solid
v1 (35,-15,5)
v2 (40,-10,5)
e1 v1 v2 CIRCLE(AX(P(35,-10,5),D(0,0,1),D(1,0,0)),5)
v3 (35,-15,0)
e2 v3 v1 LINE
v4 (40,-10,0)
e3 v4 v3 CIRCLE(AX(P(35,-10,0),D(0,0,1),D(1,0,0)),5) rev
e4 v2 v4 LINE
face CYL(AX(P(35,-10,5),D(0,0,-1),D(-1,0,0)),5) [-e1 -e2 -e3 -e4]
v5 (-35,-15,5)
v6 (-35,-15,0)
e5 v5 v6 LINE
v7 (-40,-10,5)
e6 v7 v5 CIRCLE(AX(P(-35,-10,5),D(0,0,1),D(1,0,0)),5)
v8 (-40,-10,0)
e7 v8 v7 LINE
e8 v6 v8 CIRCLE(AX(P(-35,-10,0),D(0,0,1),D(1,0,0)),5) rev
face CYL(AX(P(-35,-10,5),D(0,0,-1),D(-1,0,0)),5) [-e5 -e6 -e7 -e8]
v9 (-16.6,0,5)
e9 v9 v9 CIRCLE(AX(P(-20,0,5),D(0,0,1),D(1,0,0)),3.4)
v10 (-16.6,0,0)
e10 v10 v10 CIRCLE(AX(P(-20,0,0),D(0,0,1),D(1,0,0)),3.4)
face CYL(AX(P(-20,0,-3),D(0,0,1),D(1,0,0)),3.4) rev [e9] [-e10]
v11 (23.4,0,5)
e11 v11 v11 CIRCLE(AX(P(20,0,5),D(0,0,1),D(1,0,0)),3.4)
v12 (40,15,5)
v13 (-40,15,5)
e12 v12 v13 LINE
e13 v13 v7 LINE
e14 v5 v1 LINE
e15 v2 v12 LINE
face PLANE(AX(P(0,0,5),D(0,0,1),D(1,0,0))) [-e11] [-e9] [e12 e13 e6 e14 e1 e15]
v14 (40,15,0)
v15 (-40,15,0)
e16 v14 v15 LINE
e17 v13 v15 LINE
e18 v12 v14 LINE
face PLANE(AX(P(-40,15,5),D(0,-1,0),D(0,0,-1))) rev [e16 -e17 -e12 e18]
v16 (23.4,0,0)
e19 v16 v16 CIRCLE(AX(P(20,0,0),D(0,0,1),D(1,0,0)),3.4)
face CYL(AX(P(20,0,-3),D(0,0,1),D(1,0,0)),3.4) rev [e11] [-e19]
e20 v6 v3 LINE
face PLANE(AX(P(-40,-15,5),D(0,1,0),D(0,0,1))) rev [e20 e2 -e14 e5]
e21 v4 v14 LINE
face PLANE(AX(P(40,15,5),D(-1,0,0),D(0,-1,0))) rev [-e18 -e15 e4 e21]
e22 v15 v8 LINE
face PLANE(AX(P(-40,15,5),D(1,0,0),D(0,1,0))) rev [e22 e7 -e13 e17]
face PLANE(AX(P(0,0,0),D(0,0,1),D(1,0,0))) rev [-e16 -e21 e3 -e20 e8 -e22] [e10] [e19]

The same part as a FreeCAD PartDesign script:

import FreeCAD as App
import Part
import Sketcher
from FreeCAD import Vector


def edges_at(feature, points):
    """Names of the edges that pass closest to the given points."""
    edges = feature.Shape.Edges
    near = lambda p: min(range(len(edges)), key=lambda i: edges[i].distToShape(Part.Vertex(*p))[0])
    return sorted({f"Edge{near(p) + 1}" for p in points})


def add_polygon(sketch, points):
    """Adds a closed chain of lines whose ends are joined by coincident constraints."""
    first, n = sketch.GeometryCount, len(points)
    for a, b in zip(points, points[1:] + points[:1]):
        sketch.addGeometry(Part.LineSegment(App.Vector(*a, 0), App.Vector(*b, 0)), False)
    for i in range(n):
        sketch.addConstraint(Sketcher.Constraint("Coincident", first + i, 2, first + (i + 1) % n, 1))

doc = App.newDocument("Part")
body = doc.addObject("PartDesign::Body", "Body")

# Sketch on XY plane
sketch1 = body.newObject("Sketcher::SketchObject", "Sketch")
sketch1.AttachmentSupport = (doc.getObject("XY_Plane"), [""])
sketch1.MapMode = "FlatFace"
add_polygon(sketch1, [(-40, 15), (-40, -15), (40, -15), (40, 15)])  # lines 0-3
sketch1.addConstraint([
    Sketcher.Constraint("Vertical", 0),
    Sketcher.Constraint("Horizontal", 1),
    Sketcher.Constraint("Vertical", 2),
    Sketcher.Constraint("Horizontal", 3),
    Sketcher.Constraint("Symmetric", 0, 2, 2, 2, -1, 1),
    Sketcher.Constraint("DistanceX", 1, 1, 1, 2, 80.0),
    Sketcher.Constraint("DistanceY", 0, 2, 0, 1, 30.0),
])
pad1 = body.newObject("PartDesign::Pad", "Pad")
pad1.Profile = sketch1
pad1.Length = 5
doc.recompute()

fillet = body.newObject("PartDesign::Fillet", "Fillet")
fillet.Base = (pad1, edges_at(pad1, [(40, -15, 2.5), (-40, -15, 2.5)]))
fillet.Radius = 5

# Sketch on XY plane
sketch2 = body.newObject("Sketcher::SketchObject", "Sketch001")
sketch2.AttachmentSupport = (doc.getObject("XY_Plane"), [""])
sketch2.MapMode = "FlatFace"
sketch2.AttachmentOffset = App.Placement(Vector(0, 0, 5), App.Rotation())
sketch2.addGeometry([
    Part.Circle(Vector(-20, 0, 0), Vector(0, 0, 1), 3.4),
    Part.Circle(Vector(20, 0, 0), Vector(0, 0, 1), 3.4),
], False)
sketch2.addConstraint([
    Sketcher.Constraint("Equal", 0, 1),
    Sketcher.Constraint("Symmetric", 0, 3, 1, 3, -1, 1),
    Sketcher.Constraint("PointOnObject", 0, 3, -1),
    Sketcher.Constraint("Diameter", 0, 6.8),
    Sketcher.Constraint("DistanceX", 0, 3, -1, 1, 20.0),
])
pocket1 = body.newObject("PartDesign::Pocket", "Pocket")
pocket1.Profile = sketch2
pocket1.Length = 8

doc.recompute()
